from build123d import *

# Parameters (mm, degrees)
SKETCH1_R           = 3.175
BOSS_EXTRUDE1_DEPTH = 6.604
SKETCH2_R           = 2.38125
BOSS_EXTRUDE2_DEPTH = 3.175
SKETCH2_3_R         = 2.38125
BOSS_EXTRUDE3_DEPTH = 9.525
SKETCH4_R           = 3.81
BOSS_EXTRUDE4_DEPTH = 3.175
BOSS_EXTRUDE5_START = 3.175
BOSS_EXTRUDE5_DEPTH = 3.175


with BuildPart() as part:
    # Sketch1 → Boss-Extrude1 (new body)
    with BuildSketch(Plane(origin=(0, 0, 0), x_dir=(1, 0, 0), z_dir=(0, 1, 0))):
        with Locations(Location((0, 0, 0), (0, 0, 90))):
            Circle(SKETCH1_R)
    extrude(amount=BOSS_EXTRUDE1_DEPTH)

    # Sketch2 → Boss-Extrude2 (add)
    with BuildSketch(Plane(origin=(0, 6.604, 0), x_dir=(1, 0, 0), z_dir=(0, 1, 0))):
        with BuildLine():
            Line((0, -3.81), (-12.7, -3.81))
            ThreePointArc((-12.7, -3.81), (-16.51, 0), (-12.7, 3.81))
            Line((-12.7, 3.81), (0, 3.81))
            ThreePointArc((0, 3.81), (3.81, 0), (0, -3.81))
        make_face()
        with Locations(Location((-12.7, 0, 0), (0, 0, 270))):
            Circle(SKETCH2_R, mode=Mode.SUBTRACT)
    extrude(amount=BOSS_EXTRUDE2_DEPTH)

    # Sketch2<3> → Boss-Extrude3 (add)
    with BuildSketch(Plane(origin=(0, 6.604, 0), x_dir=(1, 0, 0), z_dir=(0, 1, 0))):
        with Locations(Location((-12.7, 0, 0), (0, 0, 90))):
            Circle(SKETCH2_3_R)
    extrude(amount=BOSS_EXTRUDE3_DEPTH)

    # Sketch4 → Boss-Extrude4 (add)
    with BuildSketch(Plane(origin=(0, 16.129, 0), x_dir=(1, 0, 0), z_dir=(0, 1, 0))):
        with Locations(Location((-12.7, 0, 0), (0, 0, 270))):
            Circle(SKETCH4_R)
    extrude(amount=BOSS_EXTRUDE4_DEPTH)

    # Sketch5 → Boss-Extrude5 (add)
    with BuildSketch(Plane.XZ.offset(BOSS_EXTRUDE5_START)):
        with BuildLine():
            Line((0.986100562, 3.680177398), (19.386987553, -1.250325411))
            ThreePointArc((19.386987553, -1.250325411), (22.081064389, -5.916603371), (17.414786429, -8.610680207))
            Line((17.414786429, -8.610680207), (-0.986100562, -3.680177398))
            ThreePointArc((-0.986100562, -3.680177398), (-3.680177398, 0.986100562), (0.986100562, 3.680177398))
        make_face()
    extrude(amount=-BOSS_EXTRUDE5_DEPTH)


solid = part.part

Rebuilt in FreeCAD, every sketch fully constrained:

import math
import FreeCAD as App
import Part
import Sketcher
from FreeCAD import Vector
Q = App.Units.Quantity

doc = App.newDocument("Part")
body = doc.addObject("PartDesign::Body", "Body")

sketch1 = doc.addObject("Sketcher::SketchObject", "Sketch")
body.addObject(sketch1)
sketch1.AttachmentSupport = (doc.XZ_Plane, [""])
sketch1.MapMode = "FlatFace"
sketch1.addGeometry(Part.Circle(Vector(0, 0, 0), Vector(0, 0, 1), 3.175), False)
sketch1.addConstraint(Sketcher.Constraint("Coincident", 0, 3, -1, 1))
sketch1.addConstraint(Sketcher.Constraint("Diameter", 0, Q("0.25 in")))
pad1 = doc.addObject("PartDesign::Pad", "Pad")
body.addObject(pad1)
pad1.Profile = sketch1
pad1.Length = Q("0.26 in")
pad1.Reversed = True

sketch2 = doc.addObject("Sketcher::SketchObject", "Sketch001")
body.addObject(sketch2)
sketch2.AttachmentSupport = (doc.XZ_Plane, [""])
sketch2.MapMode = "FlatFace"
sketch2.AttachmentOffset = App.Placement(Vector(0, 0, -0.26 * 25.4), App.Rotation())
sketch2.addGeometry(Part.LineSegment(Vector(-12.7, 3.81, 0), Vector(0, 3.81, 0)), False)
sketch2.addGeometry(Part.ArcOfCircle(Part.Circle(Vector(0, 0, 0), Vector(0, 0, 1), 3.81), math.radians(-90), math.radians(90)), False)
sketch2.addGeometry(Part.LineSegment(Vector(0, -3.81, 0), Vector(-12.7, -3.81, 0)), False)
sketch2.addGeometry(Part.ArcOfCircle(Part.Circle(Vector(-12.7, 0, 0), Vector(0, 0, 1), 3.81), math.radians(90), math.radians(270)), False)
sketch2.addGeometry(Part.Circle(Vector(-12.7, 0, 0), Vector(0, 0, 1), 2.38125), False)
sketch2.addConstraint(Sketcher.Constraint("Tangent", 0, 2, 1, 2))
sketch2.addConstraint(Sketcher.Constraint("Tangent", 1, 1, 2, 1))
sketch2.addConstraint(Sketcher.Constraint("Tangent", 2, 2, 3, 2))
sketch2.addConstraint(Sketcher.Constraint("Tangent", 3, 1, 0, 1))
sketch2.addConstraint(Sketcher.Constraint("Horizontal", 0))
sketch2.addConstraint(Sketcher.Constraint("Horizontal", 2))
sketch2.addConstraint(Sketcher.Constraint("Coincident", 1, 3, -1, 1))
sketch2.addConstraint(Sketcher.Constraint("Coincident", 4, 3, 3, 3))
sketch2.addConstraint(Sketcher.Constraint("Radius", 1, Q("0.15 in")))
sketch2.addConstraint(Sketcher.Constraint("Diameter", 4, Q("0.1875 in")))
sketch2.addConstraint(Sketcher.Constraint("DistanceX", 0, 1, 0, 2, Q("0.5 in")))
pad2 = doc.addObject("PartDesign::Pad", "Pad001")
body.addObject(pad2)
pad2.Profile = sketch2
pad2.Length = Q("0.125 in")
pad2.Reversed = True

sketch3 = doc.addObject("Sketcher::SketchObject", "Sketch002")
body.addObject(sketch3)
sketch3.AttachmentSupport = (doc.XZ_Plane, [""])
sketch3.MapMode = "FlatFace"
sketch3.AttachmentOffset = App.Placement(Vector(0, 0, -0.26 * 25.4), App.Rotation())
sketch3.addGeometry(Part.Circle(Vector(-12.7, 0, 0), Vector(0, 0, 1), 2.38125), False)
sketch3.addConstraint(Sketcher.Constraint("PointOnObject", 0, 3, -1))
sketch3.addConstraint(Sketcher.Constraint("Diameter", 0, Q("0.1875 in")))
sketch3.addConstraint(Sketcher.Constraint("DistanceX", 0, 3, -1, 1, Q("0.5 in")))
pad3 = doc.addObject("PartDesign::Pad", "Pad002")
body.addObject(pad3)
pad3.Profile = sketch3
pad3.Length = Q("0.375 in")
pad3.Reversed = True

sketch4 = doc.addObject("Sketcher::SketchObject", "Sketch003")
body.addObject(sketch4)
sketch4.AttachmentSupport = (doc.XZ_Plane, [""])
sketch4.MapMode = "FlatFace"
sketch4.AttachmentOffset = App.Placement(Vector(0, 0, -0.635 * 25.4), App.Rotation())
sketch4.addGeometry(Part.Circle(Vector(-12.7, 0, 0), Vector(0, 0, 1), 3.81), False)
sketch4.addConstraint(Sketcher.Constraint("PointOnObject", 0, 3, -1))
sketch4.addConstraint(Sketcher.Constraint("Diameter", 0, Q("0.3 in")))
sketch4.addConstraint(Sketcher.Constraint("DistanceX", 0, 3, -1, 1, Q("0.5 in")))
pad4 = doc.addObject("PartDesign::Pad", "Pad003")
body.addObject(pad4)
pad4.Profile = sketch4
pad4.Length = Q("0.125 in")
pad4.Reversed = True

sketch5 = doc.addObject("Sketcher::SketchObject", "Sketch004")
body.addObject(sketch5)
sketch5.AttachmentSupport = (doc.XZ_Plane, [""])
sketch5.MapMode = "FlatFace"
sketch5.AttachmentOffset = App.Placement(Vector(0, 0, 0.125 * 25.4), App.Rotation())
sketch5.addGeometry(Part.LineSegment(Vector(19.386988, -1.250325, 0), Vector(0.986101, 3.680177, 0)), False)
sketch5.addGeometry(Part.ArcOfCircle(Part.Circle(Vector(0, 0, 0), Vector(0, 0, 1), 3.81), math.radians(75), math.radians(255)), False)
sketch5.addGeometry(Part.LineSegment(Vector(-0.986101, -3.680177, 0), Vector(17.414786, -8.61068, 0)), False)
sketch5.addGeometry(Part.ArcOfCircle(Part.Circle(Vector(18.400887, -4.930503, 0), Vector(0, 0, 1), 3.81), math.radians(-105), math.radians(75)), False)
sketch5.addConstraint(Sketcher.Constraint("Tangent", 0, 2, 1, 1))
sketch5.addConstraint(Sketcher.Constraint("Tangent", 1, 2, 2, 1))
sketch5.addConstraint(Sketcher.Constraint("Tangent", 2, 2, 3, 1))
sketch5.addConstraint(Sketcher.Constraint("Tangent", 3, 2, 0, 1))
sketch5.addConstraint(Sketcher.Constraint("Coincident", 1, 3, -1, 1))
sketch5.addConstraint(Sketcher.Constraint("Equal", 1, 3))
sketch5.addConstraint(Sketcher.Constraint("Radius", 1, Q("0.15 in")))
sketch5.addConstraint(Sketcher.Constraint("Angle", 0, Q("165 deg")))
sketch5.addConstraint(Sketcher.Constraint("Distance", 0, Q("0.75 in")))
pad5 = doc.addObject("PartDesign::Pad", "Pad004")
body.addObject(pad5)
pad5.Profile = sketch5
pad5.Length = Q("0.125 in")
pad5.Reversed = True

doc.recompute()
